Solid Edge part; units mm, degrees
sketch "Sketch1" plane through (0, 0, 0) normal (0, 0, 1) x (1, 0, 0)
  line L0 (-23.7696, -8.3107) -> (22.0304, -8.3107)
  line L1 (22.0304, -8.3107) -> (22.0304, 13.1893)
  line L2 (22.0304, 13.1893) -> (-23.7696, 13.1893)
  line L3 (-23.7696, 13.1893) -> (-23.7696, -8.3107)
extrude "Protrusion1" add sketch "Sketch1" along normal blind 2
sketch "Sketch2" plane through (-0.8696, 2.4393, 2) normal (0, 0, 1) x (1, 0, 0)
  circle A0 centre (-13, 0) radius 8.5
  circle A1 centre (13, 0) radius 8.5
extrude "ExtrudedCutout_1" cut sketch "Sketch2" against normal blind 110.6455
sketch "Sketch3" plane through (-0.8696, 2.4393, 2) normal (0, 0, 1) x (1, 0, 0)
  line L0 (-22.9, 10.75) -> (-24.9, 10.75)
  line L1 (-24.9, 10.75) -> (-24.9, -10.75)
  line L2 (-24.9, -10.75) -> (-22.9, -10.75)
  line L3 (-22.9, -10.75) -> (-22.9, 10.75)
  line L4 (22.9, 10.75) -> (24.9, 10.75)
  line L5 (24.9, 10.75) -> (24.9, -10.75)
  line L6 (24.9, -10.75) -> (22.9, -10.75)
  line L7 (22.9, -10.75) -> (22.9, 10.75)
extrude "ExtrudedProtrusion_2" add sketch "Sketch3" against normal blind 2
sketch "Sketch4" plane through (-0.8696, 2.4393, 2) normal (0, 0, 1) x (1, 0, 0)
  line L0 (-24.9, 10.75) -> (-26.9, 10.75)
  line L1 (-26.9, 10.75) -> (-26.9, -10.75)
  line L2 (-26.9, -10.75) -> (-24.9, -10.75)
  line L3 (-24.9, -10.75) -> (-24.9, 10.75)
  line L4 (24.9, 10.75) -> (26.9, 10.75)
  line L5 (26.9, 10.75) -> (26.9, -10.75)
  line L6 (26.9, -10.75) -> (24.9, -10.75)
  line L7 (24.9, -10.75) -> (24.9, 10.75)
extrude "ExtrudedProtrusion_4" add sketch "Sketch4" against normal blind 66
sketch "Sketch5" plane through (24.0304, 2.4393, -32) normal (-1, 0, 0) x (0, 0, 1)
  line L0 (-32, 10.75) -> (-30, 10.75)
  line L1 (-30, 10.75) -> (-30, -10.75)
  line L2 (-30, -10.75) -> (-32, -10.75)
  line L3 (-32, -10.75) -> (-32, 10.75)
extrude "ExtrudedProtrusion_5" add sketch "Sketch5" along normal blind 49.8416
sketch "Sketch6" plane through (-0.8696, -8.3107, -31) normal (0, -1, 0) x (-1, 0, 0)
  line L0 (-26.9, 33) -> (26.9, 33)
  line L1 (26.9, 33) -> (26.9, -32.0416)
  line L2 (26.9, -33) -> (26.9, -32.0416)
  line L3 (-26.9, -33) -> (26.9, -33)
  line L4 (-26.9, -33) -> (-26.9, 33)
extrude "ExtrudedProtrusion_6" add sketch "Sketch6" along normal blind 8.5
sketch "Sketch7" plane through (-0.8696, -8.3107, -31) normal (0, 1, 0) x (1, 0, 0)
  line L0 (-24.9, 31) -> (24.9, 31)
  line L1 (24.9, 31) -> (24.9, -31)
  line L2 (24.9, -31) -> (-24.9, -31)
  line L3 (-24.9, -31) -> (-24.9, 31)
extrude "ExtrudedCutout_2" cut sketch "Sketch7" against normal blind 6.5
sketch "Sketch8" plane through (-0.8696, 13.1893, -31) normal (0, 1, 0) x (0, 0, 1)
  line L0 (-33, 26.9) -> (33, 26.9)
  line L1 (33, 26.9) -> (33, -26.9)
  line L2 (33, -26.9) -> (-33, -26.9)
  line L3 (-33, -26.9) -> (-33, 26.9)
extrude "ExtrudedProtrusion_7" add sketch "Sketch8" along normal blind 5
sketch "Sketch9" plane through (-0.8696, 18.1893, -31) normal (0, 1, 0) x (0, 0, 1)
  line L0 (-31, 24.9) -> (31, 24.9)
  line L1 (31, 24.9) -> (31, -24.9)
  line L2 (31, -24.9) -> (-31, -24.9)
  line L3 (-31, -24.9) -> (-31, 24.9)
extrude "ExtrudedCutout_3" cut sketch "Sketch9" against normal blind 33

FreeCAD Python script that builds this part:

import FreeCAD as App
import Part
import Sketcher
Q = App.Units.Quantity


def add_polygon(sketch, points):
    """Adds a closed chain of lines whose ends are joined by coincident constraints."""
    first, n = sketch.GeometryCount, len(points)
    for a, b in zip(points, points[1:] + points[:1]):
        sketch.addGeometry(Part.LineSegment(App.Vector(*a, 0), App.Vector(*b, 0)), False)
    for i in range(n):
        sketch.addConstraint(Sketcher.Constraint("Coincident", first + i, 2, first + (i + 1) % n, 1))

doc = App.newDocument("Part")
body = doc.addObject("PartDesign::Body", "Body")

# Sketch on XY plane
sketch1 = body.newObject("Sketcher::SketchObject", "Sketch")
sketch1.AttachmentSupport = (doc.getObject("XY_Plane"), [""])
sketch1.MapMode = "FlatFace"
add_polygon(sketch1, [(-24, 13), (-24, -8), (22, -8), (22, 13)])  # lines 0-3
sketch1.addConstraint([
    Sketcher.Constraint("Vertical", 0),
    Sketcher.Constraint("Horizontal", 1),
    Sketcher.Constraint("Vertical", 2),
    Sketcher.Constraint("Horizontal", 3),
    Sketcher.Constraint("DistanceX", 1, 1, 1, 2, Q("45.8 mm")),
    Sketcher.Constraint("DistanceY", 0, 2, 0, 1, Q("21.5 mm")),
    Sketcher.Constraint("DistanceX", 0, 2, -1, 1, Q("23.7696 mm")),
    Sketcher.Constraint("DistanceY", 0, 2, -1, 1, Q("8.3107 mm")),
])
pad1 = body.newObject("PartDesign::Pad", "Pad")
pad1.Profile = sketch1
pad1.Length = 2

# Sketch on XY plane
sketch2 = body.newObject("Sketcher::SketchObject", "Sketch001")
sketch2.AttachmentSupport = (doc.getObject("XY_Plane"), [""])
sketch2.MapMode = "FlatFace"
sketch2.AttachmentOffset = App.Placement(App.Vector(0, 0, 2), App.Rotation())
sketch2.addGeometry([
    Part.Circle(App.Vector(-14, 2, 0), App.Vector(0, 0, 1), 8),
    Part.Circle(App.Vector(12, 2, 0), App.Vector(0, 0, 1), 8),
], False)
sketch2.addConstraint([
    Sketcher.Constraint("Equal", 0, 1),
    Sketcher.Constraint("Horizontal", 0, 3, 1, 3),
    Sketcher.Constraint("Diameter", 0, Q("17 mm")),
    Sketcher.Constraint("DistanceX", 0, 3, 1, 3, Q("26 mm")),
    Sketcher.Constraint("DistanceX", 0, 3, -1, 1, Q("13.8696 mm")),
    Sketcher.Constraint("DistanceY", -1, 1, 0, 3, Q("2.4393 mm")),
])
pocket1 = body.newObject("PartDesign::Pocket", "Pocket")
pocket1.Profile = sketch2
pocket1.Length = 110.6455

# Sketch on XY plane
sketch3 = body.newObject("Sketcher::SketchObject", "Sketch002")
sketch3.AttachmentSupport = (doc.getObject("XY_Plane"), [""])
sketch3.MapMode = "FlatFace"
sketch3.AttachmentOffset = App.Placement(App.Vector(0, 0, 2), App.Rotation())
add_polygon(sketch3, [(-23.8, -8.3), (-23.8, 13.2), (-25.8, 13.2), (-25.8, -8.3)])  # lines 0-3
add_polygon(sketch3, [(24, 13.2), (22, 13.2), (22, -8.3), (24, -8.3)])  # lines 4-7
sketch3.addConstraint([
    Sketcher.Constraint("Vertical", 0),
    Sketcher.Constraint("Horizontal", 1),
    Sketcher.Constraint("Vertical", 2),
    Sketcher.Constraint("Horizontal", 3),
    Sketcher.Constraint("Horizontal", 4),
    Sketcher.Constraint("Vertical", 5),
    Sketcher.Constraint("Horizontal", 6),
    Sketcher.Constraint("Vertical", 7),
    Sketcher.Constraint("Horizontal", 1, 2, 4, 2),
    Sketcher.Constraint("Horizontal", 3, 2, 5, 2),
    Sketcher.Constraint("Equal", 3, 4),
    Sketcher.Constraint("DistanceX", 1, 2, 1, 1, Q("2 mm")),
    Sketcher.Constraint("DistanceY", 0, 1, 0, 2, Q("21.5 mm")),
    Sketcher.Constraint("DistanceX", 0, 2, 4, 2, Q("45.8 mm")),
    Sketcher.Constraint("DistanceX", 0, 2, -1, 1, Q("23.7696 mm")),
    Sketcher.Constraint("DistanceY", -1, 1, 0, 2, Q("13.1893 mm")),
])
pad2 = body.newObject("PartDesign::Pad", "Pad001")
pad2.Profile = sketch3
pad2.Length = 2
pad2.Reversed = True

# Sketch on XY plane
sketch4 = body.newObject("Sketcher::SketchObject", "Sketch003")
sketch4.AttachmentSupport = (doc.getObject("XY_Plane"), [""])
sketch4.MapMode = "FlatFace"
sketch4.AttachmentOffset = App.Placement(App.Vector(0, 0, 2), App.Rotation())
add_polygon(sketch4, [(-25.8, -8.3), (-25.8, 13.2), (-27.8, 13.2), (-27.8, -8.3)])  # lines 0-3
add_polygon(sketch4, [(26, 13.2), (24, 13.2), (24, -8.3), (26, -8.3)])  # lines 4-7
sketch4.addConstraint([
    Sketcher.Constraint("Vertical", 0),
    Sketcher.Constraint("Horizontal", 1),
    Sketcher.Constraint("Vertical", 2),
    Sketcher.Constraint("Horizontal", 3),
    Sketcher.Constraint("Horizontal", 4),
    Sketcher.Constraint("Vertical", 5),
    Sketcher.Constraint("Horizontal", 6),
    Sketcher.Constraint("Vertical", 7),
    Sketcher.Constraint("Horizontal", 1, 2, 4, 2),
    Sketcher.Constraint("Horizontal", 3, 2, 5, 2),
    Sketcher.Constraint("Equal", 3, 4),
    Sketcher.Constraint("DistanceX", 1, 2, 1, 1, Q("2 mm")),
    Sketcher.Constraint("DistanceY", 0, 1, 0, 2, Q("21.5 mm")),
    Sketcher.Constraint("DistanceX", 0, 2, 4, 2, Q("49.8 mm")),
    Sketcher.Constraint("DistanceX", 0, 2, -1, 1, Q("25.7696 mm")),
    Sketcher.Constraint("DistanceY", -1, 1, 0, 2, Q("13.1893 mm")),
])
pad3 = body.newObject("PartDesign::Pad", "Pad002")
pad3.Profile = sketch4
pad3.Length = 66
pad3.Reversed = True

# Sketch on YZ plane
sketch5 = body.newObject("Sketcher::SketchObject", "Sketch004")
sketch5.AttachmentSupport = (doc.getObject("YZ_Plane"), [""])
sketch5.MapMode = "FlatFace"
sketch5.AttachmentOffset = App.Placement(App.Vector(0, 0, 24.0304), App.Rotation())
add_polygon(sketch5, [(13.2, -62), (13.2, -64), (-8.3, -64), (-8.3, -62)])  # lines 0-3
sketch5.addConstraint([
    Sketcher.Constraint("Vertical", 0),
    Sketcher.Constraint("Horizontal", 1),
    Sketcher.Constraint("Vertical", 2),
    Sketcher.Constraint("Horizontal", 3),
    Sketcher.Constraint("DistanceY", 0, 2, 0, 1, Q("2 mm")),
    Sketcher.Constraint("DistanceX", 1, 2, 1, 1, Q("21.5 mm")),
    Sketcher.Constraint("DistanceY", 0, 2, -1, 1, Q("64 mm")),
    Sketcher.Constraint("DistanceX", -1, 1, 0, 2, Q("13.1893 mm")),
])
pad4 = body.newObject("PartDesign::Pad", "Pad003")
pad4.Profile = sketch5
pad4.Length = 49.8416
pad4.Reversed = True

# Sketch on XZ plane
sketch6 = body.newObject("Sketcher::SketchObject", "Sketch005")
sketch6.AttachmentSupport = (doc.getObject("XZ_Plane"), [""])
sketch6.MapMode = "FlatFace"
sketch6.AttachmentOffset = App.Placement(App.Vector(0, 0, 8.3107), App.Rotation())
add_polygon(sketch6, [(-28, -64), (26, -64), (26, 2), (-28, 2)])  # lines 0-3
sketch6.addConstraint([
    Sketcher.Constraint("Horizontal", 0),
    Sketcher.Constraint("Vertical", 1),
    Sketcher.Constraint("Horizontal", 2),
    Sketcher.Constraint("Vertical", 3),
    Sketcher.Constraint("DistanceY", 1, 1, 1, 2, Q("66 mm")),
    Sketcher.Constraint("DistanceX", 0, 1, 0, 2, Q("53.8 mm")),
    Sketcher.Constraint("DistanceY", 0, 2, -1, 1, Q("64 mm")),
    Sketcher.Constraint("DistanceX", -1, 1, 0, 2, Q("26.0304 mm")),
])
pad5 = body.newObject("PartDesign::Pad", "Pad004")
pad5.Profile = sketch6
pad5.Length = 8.5

# Sketch on XZ plane
sketch7 = body.newObject("Sketcher::SketchObject", "Sketch006")
sketch7.AttachmentSupport = (doc.getObject("XZ_Plane"), [""])
sketch7.MapMode = "FlatFace"
sketch7.AttachmentOffset = App.Placement(App.Vector(0, 0, 8.3107), App.Rotation())
add_polygon(sketch7, [(24, -62), (-26, -62), (-26, 0), (24, 0)])  # lines 0-3
sketch7.addConstraint([
    Sketcher.Constraint("Horizontal", 0),
    Sketcher.Constraint("Vertical", 1),
    Sketcher.Constraint("Horizontal", 2),
    Sketcher.Constraint("Vertical", 3),
    Sketcher.Constraint("PointOnObject", 1, 2, -1),
    Sketcher.Constraint("DistanceY", 1, 1, 1, 2, Q("62 mm")),
    Sketcher.Constraint("DistanceX", 0, 2, 0, 1, Q("49.8 mm")),
    Sketcher.Constraint("DistanceX", 0, 2, -1, 1, Q("25.7696 mm")),
])
pocket2 = body.newObject("PartDesign::Pocket", "Pocket001")
pocket2.Profile = sketch7
pocket2.Length = 6.5
pocket2.Reversed = True

# Sketch on XZ plane
sketch8 = body.newObject("Sketcher::SketchObject", "Sketch007")
sketch8.AttachmentSupport = (doc.getObject("XZ_Plane"), [""])
sketch8.MapMode = "FlatFace"
sketch8.AttachmentOffset = App.Placement(App.Vector(0, 0, -13.1893), App.Rotation())
add_polygon(sketch8, [(26, 2), (26, -64), (-28, -64), (-28, 2)])  # lines 0-3
sketch8.addConstraint([
    Sketcher.Constraint("Vertical", 0),
    Sketcher.Constraint("Horizontal", 1),
    Sketcher.Constraint("Vertical", 2),
    Sketcher.Constraint("Horizontal", 3),
    Sketcher.Constraint("DistanceY", 0, 2, 0, 1, Q("66 mm")),
    Sketcher.Constraint("DistanceX", 1, 2, 1, 1, Q("53.8 mm")),
    Sketcher.Constraint("DistanceY", 0, 2, -1, 1, Q("64 mm")),
    Sketcher.Constraint("DistanceX", -1, 1, 0, 2, Q("26.0304 mm")),
])
pad6 = body.newObject("PartDesign::Pad", "Pad005")
pad6.Profile = sketch8
pad6.Length = 5
pad6.Reversed = True

# Sketch on XZ plane
sketch9 = body.newObject("Sketcher::SketchObject", "Sketch008")
sketch9.AttachmentSupport = (doc.getObject("XZ_Plane"), [""])
sketch9.MapMode = "FlatFace"
sketch9.AttachmentOffset = App.Placement(App.Vector(0, 0, -18.1893), App.Rotation())
add_polygon(sketch9, [(24, 0), (24, -62), (-26, -62), (-26, 0)])  # lines 0-3
sketch9.addConstraint([
    Sketcher.Constraint("Vertical", 0),
    Sketcher.Constraint("Horizontal", 1),
    Sketcher.Constraint("Vertical", 2),
    Sketcher.Constraint("Horizontal", 3),
    Sketcher.Constraint("PointOnObject", 2, 2, -1),
    Sketcher.Constraint("DistanceY", 0, 2, 0, 1, Q("62 mm")),
    Sketcher.Constraint("DistanceX", 1, 2, 1, 1, Q("49.8 mm")),
    Sketcher.Constraint("DistanceX", -1, 1, 0, 2, Q("24.0304 mm")),
])
pocket3 = body.newObject("PartDesign::Pocket", "Pocket002")
pocket3.Profile = sketch9
pocket3.Length = 33
pocket3.Reversed = True

doc.recompute()
